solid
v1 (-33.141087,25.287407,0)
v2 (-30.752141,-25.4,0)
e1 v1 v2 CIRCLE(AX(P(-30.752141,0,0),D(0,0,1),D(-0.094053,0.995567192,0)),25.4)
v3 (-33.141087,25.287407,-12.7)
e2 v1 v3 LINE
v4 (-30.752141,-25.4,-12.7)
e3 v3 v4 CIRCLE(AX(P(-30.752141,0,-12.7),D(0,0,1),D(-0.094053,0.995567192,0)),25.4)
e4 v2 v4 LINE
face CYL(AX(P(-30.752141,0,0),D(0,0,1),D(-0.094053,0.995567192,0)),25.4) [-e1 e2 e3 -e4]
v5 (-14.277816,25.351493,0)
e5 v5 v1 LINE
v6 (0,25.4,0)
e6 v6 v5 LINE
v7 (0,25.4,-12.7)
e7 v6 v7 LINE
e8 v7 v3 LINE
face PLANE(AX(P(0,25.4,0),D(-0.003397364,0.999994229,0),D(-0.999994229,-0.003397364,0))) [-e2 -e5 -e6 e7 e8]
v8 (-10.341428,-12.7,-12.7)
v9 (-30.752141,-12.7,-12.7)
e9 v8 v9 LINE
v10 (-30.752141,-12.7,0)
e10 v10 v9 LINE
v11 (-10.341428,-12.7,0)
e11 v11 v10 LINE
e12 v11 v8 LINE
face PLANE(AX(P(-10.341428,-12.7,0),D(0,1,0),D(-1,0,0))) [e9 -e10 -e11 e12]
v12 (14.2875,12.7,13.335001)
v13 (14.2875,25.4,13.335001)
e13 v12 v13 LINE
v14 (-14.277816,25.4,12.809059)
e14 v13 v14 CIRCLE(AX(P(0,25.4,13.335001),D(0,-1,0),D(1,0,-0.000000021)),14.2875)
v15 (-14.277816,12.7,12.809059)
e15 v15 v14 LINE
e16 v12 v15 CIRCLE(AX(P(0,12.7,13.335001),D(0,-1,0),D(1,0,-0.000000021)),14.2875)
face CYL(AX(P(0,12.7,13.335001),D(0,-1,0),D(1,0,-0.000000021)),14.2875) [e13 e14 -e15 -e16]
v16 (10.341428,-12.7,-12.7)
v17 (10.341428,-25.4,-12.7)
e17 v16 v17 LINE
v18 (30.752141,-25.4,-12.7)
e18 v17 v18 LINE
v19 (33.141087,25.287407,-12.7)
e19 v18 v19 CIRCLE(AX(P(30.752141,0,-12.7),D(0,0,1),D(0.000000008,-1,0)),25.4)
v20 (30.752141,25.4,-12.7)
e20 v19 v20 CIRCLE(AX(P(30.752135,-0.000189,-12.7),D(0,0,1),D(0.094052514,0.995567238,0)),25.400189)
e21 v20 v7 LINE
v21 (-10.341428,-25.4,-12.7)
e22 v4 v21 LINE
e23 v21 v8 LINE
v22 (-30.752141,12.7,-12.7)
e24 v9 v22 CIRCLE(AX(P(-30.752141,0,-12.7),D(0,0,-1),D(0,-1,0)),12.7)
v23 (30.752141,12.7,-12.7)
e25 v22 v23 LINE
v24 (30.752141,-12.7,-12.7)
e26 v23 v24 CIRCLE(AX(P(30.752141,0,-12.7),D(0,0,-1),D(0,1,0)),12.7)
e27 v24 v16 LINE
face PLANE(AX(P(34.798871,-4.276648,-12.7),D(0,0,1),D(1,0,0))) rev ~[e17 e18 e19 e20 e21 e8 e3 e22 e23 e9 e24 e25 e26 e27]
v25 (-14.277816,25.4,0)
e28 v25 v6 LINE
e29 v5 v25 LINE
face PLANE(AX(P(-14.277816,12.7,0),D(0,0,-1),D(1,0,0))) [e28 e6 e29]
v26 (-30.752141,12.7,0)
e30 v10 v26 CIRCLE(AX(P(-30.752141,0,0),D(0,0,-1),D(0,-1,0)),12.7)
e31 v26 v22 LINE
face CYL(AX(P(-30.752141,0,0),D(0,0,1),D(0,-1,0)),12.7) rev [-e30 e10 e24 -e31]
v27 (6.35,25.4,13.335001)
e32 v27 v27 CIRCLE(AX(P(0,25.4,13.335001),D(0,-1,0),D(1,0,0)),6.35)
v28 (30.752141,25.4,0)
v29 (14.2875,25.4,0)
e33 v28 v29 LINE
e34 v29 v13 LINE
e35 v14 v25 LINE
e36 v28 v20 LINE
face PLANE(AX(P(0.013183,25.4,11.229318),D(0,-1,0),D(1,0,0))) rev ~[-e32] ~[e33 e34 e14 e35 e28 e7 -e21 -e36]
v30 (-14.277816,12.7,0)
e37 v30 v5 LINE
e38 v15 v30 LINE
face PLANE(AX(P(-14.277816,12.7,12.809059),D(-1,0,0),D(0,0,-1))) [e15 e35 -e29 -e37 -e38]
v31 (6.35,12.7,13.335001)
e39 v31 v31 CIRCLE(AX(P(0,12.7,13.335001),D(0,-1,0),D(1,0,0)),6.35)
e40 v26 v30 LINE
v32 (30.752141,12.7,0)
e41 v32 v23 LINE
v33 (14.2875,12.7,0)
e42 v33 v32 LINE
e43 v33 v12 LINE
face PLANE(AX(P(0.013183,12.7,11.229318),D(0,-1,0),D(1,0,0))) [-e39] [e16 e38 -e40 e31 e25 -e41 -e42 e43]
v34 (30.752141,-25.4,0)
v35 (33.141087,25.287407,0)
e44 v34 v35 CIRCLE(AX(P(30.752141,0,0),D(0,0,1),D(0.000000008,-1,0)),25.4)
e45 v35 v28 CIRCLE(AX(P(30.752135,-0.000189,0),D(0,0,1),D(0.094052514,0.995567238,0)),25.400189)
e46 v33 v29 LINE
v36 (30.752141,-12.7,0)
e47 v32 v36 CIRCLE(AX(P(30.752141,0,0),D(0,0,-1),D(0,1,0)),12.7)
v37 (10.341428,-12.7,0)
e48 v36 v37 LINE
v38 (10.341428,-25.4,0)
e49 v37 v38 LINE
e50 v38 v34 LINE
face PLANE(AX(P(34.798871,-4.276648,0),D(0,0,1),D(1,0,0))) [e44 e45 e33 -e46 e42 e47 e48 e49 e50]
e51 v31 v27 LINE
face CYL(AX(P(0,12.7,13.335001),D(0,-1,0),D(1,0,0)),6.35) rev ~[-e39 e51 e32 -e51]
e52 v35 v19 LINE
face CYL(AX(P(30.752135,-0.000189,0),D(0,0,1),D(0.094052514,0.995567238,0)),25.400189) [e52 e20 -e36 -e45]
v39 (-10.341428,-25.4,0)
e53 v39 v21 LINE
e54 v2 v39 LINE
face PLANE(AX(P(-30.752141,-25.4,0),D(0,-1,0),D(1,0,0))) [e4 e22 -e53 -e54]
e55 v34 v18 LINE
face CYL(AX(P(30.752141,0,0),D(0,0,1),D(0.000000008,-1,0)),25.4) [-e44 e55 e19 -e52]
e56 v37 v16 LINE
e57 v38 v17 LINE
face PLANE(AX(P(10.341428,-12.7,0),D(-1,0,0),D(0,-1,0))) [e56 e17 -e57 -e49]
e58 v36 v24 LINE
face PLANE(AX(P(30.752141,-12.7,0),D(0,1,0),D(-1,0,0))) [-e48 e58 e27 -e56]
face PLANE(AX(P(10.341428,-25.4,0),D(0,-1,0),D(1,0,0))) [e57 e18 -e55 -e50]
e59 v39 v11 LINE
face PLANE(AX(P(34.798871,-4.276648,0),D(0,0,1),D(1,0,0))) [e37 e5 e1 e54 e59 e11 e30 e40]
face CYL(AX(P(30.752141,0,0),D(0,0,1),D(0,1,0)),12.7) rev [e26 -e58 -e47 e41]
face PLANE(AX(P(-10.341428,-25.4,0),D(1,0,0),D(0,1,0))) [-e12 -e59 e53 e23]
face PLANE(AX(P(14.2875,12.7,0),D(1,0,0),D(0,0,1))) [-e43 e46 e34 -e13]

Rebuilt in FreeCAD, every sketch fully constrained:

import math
import FreeCAD as App
import Part
import Sketcher

V = App.Vector
Q = App.Units.Quantity

doc = App.newDocument("Part")
body = doc.addObject("PartDesign::Body", "Body")

sketch1 = body.newObject("Sketcher::SketchObject", "Sketch")
sketch1.AttachmentSupport = (doc.getObject("XY_Plane"), [""])
sketch1.MapMode = "FlatFace"
sketch1.addGeometry([
    Part.ArcOfCircle(Part.Circle(V(30.752141, 0, 0), V(0, 0, 1), 12.7), math.radians(-90), math.radians(90)),
    Part.LineSegment(V(30.752141, -12.7, 0), V(10.341428, -12.7, 0)),
    Part.LineSegment(V(10.341428, -12.7, 0), V(10.341428, -25.4, 0)),
    Part.LineSegment(V(10.341428, -25.4, 0), V(30.752141, -25.4, 0)),
    Part.ArcOfCircle(Part.Circle(V(30.752141, 0, 0), V(0, 0, 1), 25.4), math.radians(-90), math.radians(84.603183)),
    Part.ArcOfCircle(Part.Circle(V(30.752135, -0.000189, 0), V(0, 0, 1), 25.400189), math.radians(84.603211), math.radians(89.999987)),
    Part.LineSegment(V(30.752141, 25.4, 0), V(0, 25.4, 0)),
    Part.LineSegment(V(0, 25.4, 0), V(-33.141087, 25.287407, 0)),
    Part.ArcOfCircle(Part.Circle(V(-30.752141, 0, 0), V(0, 0, 1), 25.4), math.radians(95.396817), math.radians(270)),
    Part.LineSegment(V(-30.752141, -25.4, 0), V(-10.341428, -25.4, 0)),
    Part.LineSegment(V(-10.341428, -25.4, 0), V(-10.341428, -12.7, 0)),
    Part.LineSegment(V(-10.341428, -12.7, 0), V(-30.752141, -12.7, 0)),
    Part.ArcOfCircle(Part.Circle(V(-30.752141, 0, 0), V(0, 0, 1), 12.7), math.radians(90), math.radians(270)),
    Part.LineSegment(V(-30.752141, 12.7, 0), V(30.752141, 12.7, 0)),
], False)
sketch1.addConstraint([
    Sketcher.Constraint("Coincident", 0, 1, 1, 1),
    Sketcher.Constraint("Coincident", 1, 2, 2, 1),
    Sketcher.Constraint("Coincident", 2, 2, 3, 1),
    Sketcher.Constraint("Coincident", 3, 2, 4, 1),
    Sketcher.Constraint("Coincident", 4, 2, 5, 1),
    Sketcher.Constraint("Coincident", 5, 2, 6, 1),
    Sketcher.Constraint("Coincident", 6, 2, 7, 1),
    Sketcher.Constraint("Coincident", 7, 2, 8, 1),
    Sketcher.Constraint("Coincident", 8, 2, 9, 1),
    Sketcher.Constraint("Coincident", 9, 2, 10, 1),
    Sketcher.Constraint("Coincident", 10, 2, 11, 1),
    Sketcher.Constraint("Coincident", 11, 2, 12, 2),
    Sketcher.Constraint("Coincident", 12, 1, 13, 1),
    Sketcher.Constraint("Coincident", 13, 2, 0, 2),
    Sketcher.Constraint("Horizontal", 1),
    Sketcher.Constraint("Vertical", 2),
    Sketcher.Constraint("Horizontal", 3),
    Sketcher.Constraint("Horizontal", 6),
    Sketcher.Constraint("Horizontal", 9),
    Sketcher.Constraint("Vertical", 10),
    Sketcher.Constraint("Horizontal", 11),
    Sketcher.Constraint("Horizontal", 13),
    Sketcher.Constraint("Coincident", 4, 3, 0, 3),
    Sketcher.Constraint("Coincident", 12, 3, 8, 3),
    Sketcher.Constraint("PointOnObject", 0, 3, -1),
    Sketcher.Constraint("PointOnObject", 8, 3, -1),
    Sketcher.Constraint("PointOnObject", 6, 2, -2),
    Sketcher.Constraint("Radius", 4, Q("1 in")),
    Sketcher.Constraint("Radius", 8, Q("1 in")),
    Sketcher.Constraint("Radius", 0, Q("0.5 in")),
    Sketcher.Constraint("DistanceY", -1, 1, 5, 2, Q("1 in")),
    Sketcher.Constraint("Radius", 5, 25.400189),
    Sketcher.Constraint("DistanceX", 6, 2, 6, 1, 30.752141),
    Sketcher.Constraint("Distance", 7, 33.141278),
    Sketcher.Constraint("DistanceX", 1, 2, 1, 1, 20.410713),
    Sketcher.Constraint("DistanceX", 3, 1, 3, 2, 20.410713),
    Sketcher.Constraint("DistanceX", 9, 1, 9, 2, 20.410713),
    Sketcher.Constraint("DistanceX", 11, 2, 11, 1, 20.410713),
    Sketcher.Constraint("DistanceX", 13, 1, 13, 2, 61.504282),
    Sketcher.Constraint("DistanceX", -1, 1, 0, 3, 30.752141),
    Sketcher.Constraint("DistanceX", 8, 3, -1, 1, 30.752141),
    Sketcher.Constraint("DistanceX", -1, 1, 0, 1, 30.752141),
    Sketcher.Constraint("DistanceX", 8, 2, -1, 1, 30.752141),
    Sketcher.Constraint("DistanceX", 12, 1, -1, 1, 30.752141),
    Sketcher.Constraint("DistanceX", 5, 3, 4, 2, 2.388952),
])
pad1 = body.newObject("PartDesign::Pad", "Pad")
pad1.Profile = sketch1
pad1.Length = Q("0.5 in")
pad1.Reversed = True

sketch2 = body.newObject("Sketcher::SketchObject", "Sketch001")
sketch2.AttachmentSupport = (doc.getObject("XZ_Plane"), [""])
sketch2.MapMode = "FlatFace"
sketch2.AttachmentOffset = App.Placement(V(0, 0, -0.5 * 25.4), App.Rotation())
sketch2.addGeometry([
    Part.LineSegment(V(14.2875, 0, 0), V(14.2875, 13.335001, 0)),
    Part.ArcOfCircle(Part.Circle(V(0, 13.335001, 0), V(0, 0, 1), 14.2875), math.radians(-0.000001), math.radians(182.109612)),
    Part.LineSegment(V(-14.277816, 12.809059, 0), V(-14.277816, 0, 0)),
    Part.LineSegment(V(-14.277816, 0, 0), V(14.2875, 0, 0)),
    Part.Circle(V(0, 13.335001, 0), V(0, 0, 1), 6.35),
], False)
sketch2.addConstraint([
    Sketcher.Constraint("Tangent", 0, 2, 1, 1),
    Sketcher.Constraint("Coincident", 1, 2, 2, 1),
    Sketcher.Constraint("Coincident", 2, 2, 3, 1),
    Sketcher.Constraint("Coincident", 3, 2, 0, 1),
    Sketcher.Constraint("Vertical", 0),
    Sketcher.Constraint("Vertical", 2),
    Sketcher.Constraint("Horizontal", 3),
    Sketcher.Constraint("Coincident", 4, 3, 1, 3),
    Sketcher.Constraint("PointOnObject", 1, 3, -2),
    Sketcher.Constraint("PointOnObject", 2, 2, -1),
    Sketcher.Constraint("Diameter", 4, Q("0.5 in")),
    Sketcher.Constraint("Radius", 1, Q("0.5625 in")),
    Sketcher.Constraint("DistanceY", 0, 1, 0, 2, Q("0.525 in")),
    Sketcher.Constraint("DistanceY", 2, 2, 2, 1, 12.809059),
])
pad2 = body.newObject("PartDesign::Pad", "Pad001")
pad2.Profile = sketch2
pad2.Length = Q("0.5 in")
pad2.Reversed = True

doc.recompute()
